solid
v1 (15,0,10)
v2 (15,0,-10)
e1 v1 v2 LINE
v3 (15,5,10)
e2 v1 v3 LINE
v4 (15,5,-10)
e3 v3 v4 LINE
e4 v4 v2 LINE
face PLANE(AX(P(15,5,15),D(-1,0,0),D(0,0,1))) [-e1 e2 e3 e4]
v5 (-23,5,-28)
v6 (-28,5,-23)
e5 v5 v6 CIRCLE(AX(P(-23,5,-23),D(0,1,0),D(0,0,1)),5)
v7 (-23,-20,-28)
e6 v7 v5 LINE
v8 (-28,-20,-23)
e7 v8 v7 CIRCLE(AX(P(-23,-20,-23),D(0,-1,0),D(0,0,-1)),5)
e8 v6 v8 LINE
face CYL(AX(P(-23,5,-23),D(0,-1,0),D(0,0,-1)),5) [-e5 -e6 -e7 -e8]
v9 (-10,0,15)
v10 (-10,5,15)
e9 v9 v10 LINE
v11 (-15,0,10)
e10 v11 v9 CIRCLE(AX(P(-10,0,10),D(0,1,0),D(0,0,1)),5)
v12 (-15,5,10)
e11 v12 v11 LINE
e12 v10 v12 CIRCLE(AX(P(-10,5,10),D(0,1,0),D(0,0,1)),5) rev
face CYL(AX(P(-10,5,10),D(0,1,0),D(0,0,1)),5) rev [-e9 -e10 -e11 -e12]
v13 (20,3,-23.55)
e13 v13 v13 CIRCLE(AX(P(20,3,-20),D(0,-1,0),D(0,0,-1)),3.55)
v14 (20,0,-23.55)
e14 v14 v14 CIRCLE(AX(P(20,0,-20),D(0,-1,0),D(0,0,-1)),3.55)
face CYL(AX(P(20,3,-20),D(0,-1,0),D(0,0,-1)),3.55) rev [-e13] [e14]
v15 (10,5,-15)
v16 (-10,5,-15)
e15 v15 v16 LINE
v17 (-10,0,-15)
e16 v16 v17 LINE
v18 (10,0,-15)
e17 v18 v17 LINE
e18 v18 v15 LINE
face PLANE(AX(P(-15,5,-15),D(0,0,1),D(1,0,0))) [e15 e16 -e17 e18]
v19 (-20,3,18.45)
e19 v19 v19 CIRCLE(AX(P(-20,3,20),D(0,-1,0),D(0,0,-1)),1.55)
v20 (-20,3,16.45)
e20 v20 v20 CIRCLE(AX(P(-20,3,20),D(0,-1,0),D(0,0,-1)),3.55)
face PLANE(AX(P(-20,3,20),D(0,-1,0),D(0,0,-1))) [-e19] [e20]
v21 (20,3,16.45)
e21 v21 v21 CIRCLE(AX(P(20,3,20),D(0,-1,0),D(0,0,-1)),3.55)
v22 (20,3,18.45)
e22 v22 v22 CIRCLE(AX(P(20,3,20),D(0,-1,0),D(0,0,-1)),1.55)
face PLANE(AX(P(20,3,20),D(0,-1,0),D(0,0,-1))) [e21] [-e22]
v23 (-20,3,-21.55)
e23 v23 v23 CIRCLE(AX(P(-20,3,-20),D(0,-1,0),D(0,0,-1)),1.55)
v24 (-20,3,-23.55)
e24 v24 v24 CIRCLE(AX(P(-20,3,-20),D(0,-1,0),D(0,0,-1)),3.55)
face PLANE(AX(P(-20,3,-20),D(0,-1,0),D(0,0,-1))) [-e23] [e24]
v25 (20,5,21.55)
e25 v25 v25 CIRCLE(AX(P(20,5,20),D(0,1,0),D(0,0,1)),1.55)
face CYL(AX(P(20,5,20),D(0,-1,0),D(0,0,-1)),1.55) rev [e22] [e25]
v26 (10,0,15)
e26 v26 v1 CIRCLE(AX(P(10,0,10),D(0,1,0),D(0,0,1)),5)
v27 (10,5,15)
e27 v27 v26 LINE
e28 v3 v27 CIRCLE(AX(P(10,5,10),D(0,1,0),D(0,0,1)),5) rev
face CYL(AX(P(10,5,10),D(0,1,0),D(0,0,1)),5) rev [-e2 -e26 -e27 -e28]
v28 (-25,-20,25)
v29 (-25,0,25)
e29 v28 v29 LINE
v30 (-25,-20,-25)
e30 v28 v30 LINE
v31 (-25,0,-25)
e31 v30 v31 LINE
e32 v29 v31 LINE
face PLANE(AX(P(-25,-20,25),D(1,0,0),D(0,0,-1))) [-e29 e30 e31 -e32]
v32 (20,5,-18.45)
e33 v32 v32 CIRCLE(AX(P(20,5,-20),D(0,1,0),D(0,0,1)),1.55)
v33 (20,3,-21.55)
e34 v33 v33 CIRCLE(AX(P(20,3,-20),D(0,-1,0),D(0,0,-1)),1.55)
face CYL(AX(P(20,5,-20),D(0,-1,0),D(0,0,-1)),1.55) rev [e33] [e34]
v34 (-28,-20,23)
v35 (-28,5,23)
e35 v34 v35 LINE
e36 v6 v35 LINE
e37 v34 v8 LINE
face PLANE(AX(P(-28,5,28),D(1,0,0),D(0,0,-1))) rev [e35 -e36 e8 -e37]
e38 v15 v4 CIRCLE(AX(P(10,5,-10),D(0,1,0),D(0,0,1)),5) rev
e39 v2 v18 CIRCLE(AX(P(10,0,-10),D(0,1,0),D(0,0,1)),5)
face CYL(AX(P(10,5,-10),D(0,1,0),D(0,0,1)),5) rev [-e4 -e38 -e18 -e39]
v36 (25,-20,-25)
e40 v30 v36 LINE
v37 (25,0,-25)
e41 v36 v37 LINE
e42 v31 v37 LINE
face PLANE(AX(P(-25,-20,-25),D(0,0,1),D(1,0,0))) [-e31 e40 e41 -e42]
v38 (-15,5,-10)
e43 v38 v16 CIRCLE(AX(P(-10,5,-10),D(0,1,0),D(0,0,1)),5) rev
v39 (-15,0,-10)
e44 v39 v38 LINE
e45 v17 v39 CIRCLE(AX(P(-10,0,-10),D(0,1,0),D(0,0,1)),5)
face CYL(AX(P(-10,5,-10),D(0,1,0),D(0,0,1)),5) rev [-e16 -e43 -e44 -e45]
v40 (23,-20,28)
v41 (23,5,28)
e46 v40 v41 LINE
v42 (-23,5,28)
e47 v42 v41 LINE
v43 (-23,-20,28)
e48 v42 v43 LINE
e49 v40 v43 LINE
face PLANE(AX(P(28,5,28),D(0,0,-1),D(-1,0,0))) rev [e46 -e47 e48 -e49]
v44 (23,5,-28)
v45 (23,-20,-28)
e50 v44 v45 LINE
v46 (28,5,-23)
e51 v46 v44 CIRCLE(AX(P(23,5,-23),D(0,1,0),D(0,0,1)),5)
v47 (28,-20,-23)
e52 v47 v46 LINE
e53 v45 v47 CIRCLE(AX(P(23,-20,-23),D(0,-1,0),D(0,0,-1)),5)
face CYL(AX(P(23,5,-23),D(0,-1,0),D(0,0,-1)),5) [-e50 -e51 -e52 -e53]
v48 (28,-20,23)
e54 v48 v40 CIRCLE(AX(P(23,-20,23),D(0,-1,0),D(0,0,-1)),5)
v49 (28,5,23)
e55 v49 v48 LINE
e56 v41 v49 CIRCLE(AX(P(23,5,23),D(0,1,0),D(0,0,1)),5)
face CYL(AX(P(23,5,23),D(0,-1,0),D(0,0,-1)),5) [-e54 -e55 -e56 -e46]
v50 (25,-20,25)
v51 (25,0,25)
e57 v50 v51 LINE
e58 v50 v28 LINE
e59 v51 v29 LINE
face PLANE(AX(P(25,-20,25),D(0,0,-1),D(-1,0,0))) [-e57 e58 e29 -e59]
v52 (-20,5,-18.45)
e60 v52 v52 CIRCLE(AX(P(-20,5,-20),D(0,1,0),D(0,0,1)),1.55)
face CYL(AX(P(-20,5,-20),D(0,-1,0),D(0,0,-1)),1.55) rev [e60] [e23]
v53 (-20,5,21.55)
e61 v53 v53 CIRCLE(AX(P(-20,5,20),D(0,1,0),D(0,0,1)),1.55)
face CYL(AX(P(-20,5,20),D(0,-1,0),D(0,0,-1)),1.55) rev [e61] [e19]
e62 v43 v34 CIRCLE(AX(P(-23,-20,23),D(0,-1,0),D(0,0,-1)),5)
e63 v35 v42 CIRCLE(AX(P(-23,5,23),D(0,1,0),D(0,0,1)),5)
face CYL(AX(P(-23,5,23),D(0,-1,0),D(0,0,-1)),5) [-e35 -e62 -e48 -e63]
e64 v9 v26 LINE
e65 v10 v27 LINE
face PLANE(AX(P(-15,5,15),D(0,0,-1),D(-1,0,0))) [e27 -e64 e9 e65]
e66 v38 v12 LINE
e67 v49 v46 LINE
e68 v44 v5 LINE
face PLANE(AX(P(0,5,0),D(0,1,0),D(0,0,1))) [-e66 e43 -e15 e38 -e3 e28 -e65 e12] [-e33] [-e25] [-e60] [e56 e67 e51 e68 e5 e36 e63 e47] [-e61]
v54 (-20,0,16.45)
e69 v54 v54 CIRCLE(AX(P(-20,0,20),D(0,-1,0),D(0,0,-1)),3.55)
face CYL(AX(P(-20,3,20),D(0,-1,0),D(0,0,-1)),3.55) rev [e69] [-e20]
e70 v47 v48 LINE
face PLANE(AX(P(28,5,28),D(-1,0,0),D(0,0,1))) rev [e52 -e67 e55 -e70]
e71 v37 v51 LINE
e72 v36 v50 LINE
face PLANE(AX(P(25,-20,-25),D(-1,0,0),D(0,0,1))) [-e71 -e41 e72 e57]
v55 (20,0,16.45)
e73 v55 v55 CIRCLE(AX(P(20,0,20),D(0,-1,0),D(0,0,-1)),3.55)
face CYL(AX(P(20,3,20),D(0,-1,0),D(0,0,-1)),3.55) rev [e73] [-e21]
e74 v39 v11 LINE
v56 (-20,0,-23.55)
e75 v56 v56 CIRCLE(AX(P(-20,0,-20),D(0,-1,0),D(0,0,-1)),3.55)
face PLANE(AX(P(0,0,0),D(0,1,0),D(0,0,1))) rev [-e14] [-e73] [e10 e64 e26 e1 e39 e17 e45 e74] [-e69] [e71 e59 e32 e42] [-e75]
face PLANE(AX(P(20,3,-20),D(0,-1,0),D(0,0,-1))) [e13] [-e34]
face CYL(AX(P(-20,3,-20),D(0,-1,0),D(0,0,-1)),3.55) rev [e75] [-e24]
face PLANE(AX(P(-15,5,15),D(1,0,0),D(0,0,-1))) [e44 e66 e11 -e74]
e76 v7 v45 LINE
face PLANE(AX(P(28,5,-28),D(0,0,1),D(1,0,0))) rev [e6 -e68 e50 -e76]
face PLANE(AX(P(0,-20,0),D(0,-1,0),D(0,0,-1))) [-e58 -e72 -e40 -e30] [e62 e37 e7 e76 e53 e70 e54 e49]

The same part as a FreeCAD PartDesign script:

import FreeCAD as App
import Part
import Sketcher
Q = App.Units.Quantity


def edges_at(feature, points):
    """Names of the edges that pass closest to the given points."""
    edges = feature.Shape.Edges
    near = lambda p: min(range(len(edges)), key=lambda i: edges[i].distToShape(Part.Vertex(*p))[0])
    return sorted({f"Edge{near(p) + 1}" for p in points})

doc = App.newDocument("Part")
body = doc.addObject("PartDesign::Body", "Body")

sketch1 = doc.addObject("Sketcher::SketchObject", "Sketch")
body.addObject(sketch1)
sketch1.AttachmentSupport = (doc.XZ_Plane, [""])
sketch1.MapMode = "FlatFace"
sketch1.addGeometry(Part.LineSegment(App.Vector(-28, -28, 0), App.Vector(-28, 28, 0)), False)
sketch1.addGeometry(Part.LineSegment(App.Vector(-28, 28, 0), App.Vector(28, 28, 0)), False)
sketch1.addGeometry(Part.LineSegment(App.Vector(28, 28, 0), App.Vector(28, -28, 0)), False)
sketch1.addGeometry(Part.LineSegment(App.Vector(28, -28, 0), App.Vector(-28, -28, 0)), False)
sketch1.addGeometry(Part.Circle(App.Vector(-20, 20, 0), App.Vector(0, 0, 1), 1.55), False)
sketch1.addGeometry(Part.Circle(App.Vector(20, 20, 0), App.Vector(0, 0, 1), 1.55), False)
sketch1.addGeometry(Part.Circle(App.Vector(-20, -20, 0), App.Vector(0, 0, 1), 1.55), False)
sketch1.addGeometry(Part.LineSegment(App.Vector(15, 15, 0), App.Vector(-15, 15, 0)), False)
sketch1.addGeometry(Part.LineSegment(App.Vector(-15, 15, 0), App.Vector(-15, -15, 0)), False)
sketch1.addGeometry(Part.LineSegment(App.Vector(-15, -15, 0), App.Vector(15, -15, 0)), False)
sketch1.addGeometry(Part.LineSegment(App.Vector(15, -15, 0), App.Vector(15, 15, 0)), False)
sketch1.addGeometry(Part.Circle(App.Vector(20, -20, 0), App.Vector(0, 0, 1), 1.55), False)
sketch1.addConstraint(Sketcher.Constraint("Coincident", 0, 2, 1, 1))
sketch1.addConstraint(Sketcher.Constraint("Coincident", 1, 2, 2, 1))
sketch1.addConstraint(Sketcher.Constraint("Coincident", 2, 2, 3, 1))
sketch1.addConstraint(Sketcher.Constraint("Coincident", 3, 2, 0, 1))
sketch1.addConstraint(Sketcher.Constraint("Coincident", 7, 2, 8, 1))
sketch1.addConstraint(Sketcher.Constraint("Coincident", 8, 2, 9, 1))
sketch1.addConstraint(Sketcher.Constraint("Coincident", 9, 2, 10, 1))
sketch1.addConstraint(Sketcher.Constraint("Coincident", 10, 2, 7, 1))
sketch1.addConstraint(Sketcher.Constraint("Vertical", 0))
sketch1.addConstraint(Sketcher.Constraint("Horizontal", 1))
sketch1.addConstraint(Sketcher.Constraint("Vertical", 2))
sketch1.addConstraint(Sketcher.Constraint("Horizontal", 3))
sketch1.addConstraint(Sketcher.Constraint("Horizontal", 7))
sketch1.addConstraint(Sketcher.Constraint("Vertical", 8))
sketch1.addConstraint(Sketcher.Constraint("Horizontal", 9))
sketch1.addConstraint(Sketcher.Constraint("Vertical", 10))
sketch1.addConstraint(Sketcher.Constraint("Equal", 4, 5))
sketch1.addConstraint(Sketcher.Constraint("Equal", 5, 6))
sketch1.addConstraint(Sketcher.Constraint("Equal", 6, 11))
sketch1.addConstraint(Sketcher.Constraint("Symmetric", 5, 3, 6, 3, -1, 1))
sketch1.addConstraint(Sketcher.Constraint("Symmetric", 4, 3, 11, 3, -1, 1))
sketch1.addConstraint(Sketcher.Constraint("Symmetric", 0, 2, 2, 2, -1, 1))
sketch1.addConstraint(Sketcher.Constraint("Symmetric", 7, 2, 9, 2, -1, 1))
sketch1.addConstraint(Sketcher.Constraint("Symmetric", 4, 3, 5, 3, -2))
sketch1.addConstraint(Sketcher.Constraint("Equal", 3, 0))
sketch1.addConstraint(Sketcher.Constraint("Equal", 9, 8))
sketch1.addConstraint(Sketcher.Constraint("Diameter", 4, Q("3.1 mm")))
sketch1.addConstraint(Sketcher.Constraint("DistanceX", 1, 1, 1, 2, Q("56 mm")))
sketch1.addConstraint(Sketcher.Constraint("DistanceX", 7, 2, 7, 1, Q("30 mm")))
sketch1.addConstraint(Sketcher.Constraint("DistanceX", 4, 3, -1, 1, Q("20 mm")))
sketch1.addConstraint(Sketcher.Constraint("DistanceY", -1, 1, 4, 3, Q("20 mm")))
pad1 = doc.addObject("PartDesign::Pad", "Pad")
body.addObject(pad1)
pad1.Profile = sketch1
pad1.Length = 5
pad1.Reversed = True

sketch2 = doc.addObject("Sketcher::SketchObject", "Sketch001")
body.addObject(sketch2)
sketch2.AttachmentSupport = (doc.XZ_Plane, [""])
sketch2.MapMode = "FlatFace"
sketch2.addGeometry(Part.Circle(App.Vector(-20, 20, 0), App.Vector(0, 0, 1), 3.55), False)
sketch2.addGeometry(Part.Circle(App.Vector(20, 20, 0), App.Vector(0, 0, 1), 3.55), False)
sketch2.addGeometry(Part.Circle(App.Vector(-20, -20, 0), App.Vector(0, 0, 1), 3.55), False)
sketch2.addGeometry(Part.Circle(App.Vector(20, -20, 0), App.Vector(0, 0, 1), 3.55), False)
sketch2.addConstraint(Sketcher.Constraint("Equal", 0, 1))
sketch2.addConstraint(Sketcher.Constraint("Equal", 1, 2))
sketch2.addConstraint(Sketcher.Constraint("Equal", 2, 3))
sketch2.addConstraint(Sketcher.Constraint("Symmetric", 1, 3, 2, 3, -1, 1))
sketch2.addConstraint(Sketcher.Constraint("Symmetric", 0, 3, 3, 3, -1, 1))
sketch2.addConstraint(Sketcher.Constraint("Symmetric", 0, 3, 1, 3, -2))
sketch2.addConstraint(Sketcher.Constraint("Diameter", 0, Q("7.1 mm")))
sketch2.addConstraint(Sketcher.Constraint("DistanceX", 0, 3, -1, 1, Q("20 mm")))
sketch2.addConstraint(Sketcher.Constraint("DistanceY", -1, 1, 0, 3, Q("20 mm")))
pocket1 = doc.addObject("PartDesign::Pocket", "Pocket")
body.addObject(pocket1)
pocket1.Profile = sketch2
pocket1.Length = 3
doc.recompute()

fillet = doc.addObject("PartDesign::Fillet", "Fillet")
body.addObject(fillet)
fillet.Base = (pocket1, edges_at(pocket1, [
    (15, 2.5, 15),
    (15, 2.5, -15),
    (-15, 2.5, -15),
    (-15, 2.5, 15),
]))
fillet.Radius = 5

sketch3 = doc.addObject("Sketcher::SketchObject", "Sketch002")
body.addObject(sketch3)
sketch3.AttachmentSupport = (doc.XZ_Plane, [""])
sketch3.MapMode = "FlatFace"
sketch3.addGeometry(Part.LineSegment(App.Vector(-28, 28, 0), App.Vector(-28, -28, 0)), False)
sketch3.addGeometry(Part.LineSegment(App.Vector(-28, -28, 0), App.Vector(28, -28, 0)), False)
sketch3.addGeometry(Part.LineSegment(App.Vector(28, -28, 0), App.Vector(28, 28, 0)), False)
sketch3.addGeometry(Part.LineSegment(App.Vector(28, 28, 0), App.Vector(-28, 28, 0)), False)
sketch3.addGeometry(Part.LineSegment(App.Vector(25, -25, 0), App.Vector(-25, -25, 0)), False)
sketch3.addGeometry(Part.LineSegment(App.Vector(-25, -25, 0), App.Vector(-25, 25, 0)), False)
sketch3.addGeometry(Part.LineSegment(App.Vector(-25, 25, 0), App.Vector(25, 25, 0)), False)
sketch3.addGeometry(Part.LineSegment(App.Vector(25, 25, 0), App.Vector(25, -25, 0)), False)
sketch3.addConstraint(Sketcher.Constraint("Coincident", 0, 2, 1, 1))
sketch3.addConstraint(Sketcher.Constraint("Coincident", 1, 2, 2, 1))
sketch3.addConstraint(Sketcher.Constraint("Coincident", 2, 2, 3, 1))
sketch3.addConstraint(Sketcher.Constraint("Coincident", 3, 2, 0, 1))
sketch3.addConstraint(Sketcher.Constraint("Coincident", 4, 2, 5, 1))
sketch3.addConstraint(Sketcher.Constraint("Coincident", 5, 2, 6, 1))
sketch3.addConstraint(Sketcher.Constraint("Coincident", 6, 2, 7, 1))
sketch3.addConstraint(Sketcher.Constraint("Coincident", 7, 2, 4, 1))
sketch3.addConstraint(Sketcher.Constraint("Vertical", 0))
sketch3.addConstraint(Sketcher.Constraint("Horizontal", 1))
sketch3.addConstraint(Sketcher.Constraint("Vertical", 2))
sketch3.addConstraint(Sketcher.Constraint("Horizontal", 3))
sketch3.addConstraint(Sketcher.Constraint("Horizontal", 4))
sketch3.addConstraint(Sketcher.Constraint("Vertical", 5))
sketch3.addConstraint(Sketcher.Constraint("Horizontal", 6))
sketch3.addConstraint(Sketcher.Constraint("Vertical", 7))
sketch3.addConstraint(Sketcher.Constraint("Symmetric", 0, 2, 2, 2, -1, 1))
sketch3.addConstraint(Sketcher.Constraint("Symmetric", 4, 2, 6, 2, -1, 1))
sketch3.addConstraint(Sketcher.Constraint("Equal", 3, 0))
sketch3.addConstraint(Sketcher.Constraint("Equal", 6, 5))
sketch3.addConstraint(Sketcher.Constraint("DistanceX", 1, 1, 1, 2, Q("56 mm")))
sketch3.addConstraint(Sketcher.Constraint("DistanceX", 4, 2, 4, 1, Q("50 mm")))
pad2 = doc.addObject("PartDesign::Pad", "Pad001")
body.addObject(pad2)
pad2.Profile = sketch3
pad2.Length = 20
doc.recompute()

fillet2 = doc.addObject("PartDesign::Fillet", "Fillet001")
body.addObject(fillet2)
fillet2.Base = (pad2, edges_at(pad2, [
    (-28, -7.5, -28),
    (28, -7.5, -28),
    (28, -7.5, 28),
    (-28, -7.5, 28),
]))
fillet2.Radius = 5

doc.recompute()
